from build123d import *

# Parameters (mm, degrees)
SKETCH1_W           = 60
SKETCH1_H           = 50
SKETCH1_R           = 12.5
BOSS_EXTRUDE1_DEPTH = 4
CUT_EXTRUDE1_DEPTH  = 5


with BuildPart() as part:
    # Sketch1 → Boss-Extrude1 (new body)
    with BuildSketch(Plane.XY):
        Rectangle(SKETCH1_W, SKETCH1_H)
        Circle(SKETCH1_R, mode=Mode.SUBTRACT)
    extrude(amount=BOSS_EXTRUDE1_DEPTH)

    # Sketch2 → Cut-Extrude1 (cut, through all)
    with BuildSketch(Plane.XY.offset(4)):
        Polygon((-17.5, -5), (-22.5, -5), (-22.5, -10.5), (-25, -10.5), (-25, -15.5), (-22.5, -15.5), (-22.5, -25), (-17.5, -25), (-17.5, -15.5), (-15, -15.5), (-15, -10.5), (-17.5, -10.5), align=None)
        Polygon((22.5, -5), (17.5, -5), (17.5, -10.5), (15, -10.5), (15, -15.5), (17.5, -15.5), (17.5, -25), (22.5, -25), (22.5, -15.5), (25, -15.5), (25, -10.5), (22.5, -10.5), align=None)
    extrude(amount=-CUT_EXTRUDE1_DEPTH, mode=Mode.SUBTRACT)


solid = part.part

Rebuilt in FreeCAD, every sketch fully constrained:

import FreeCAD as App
import Part
import Sketcher

V = App.Vector
Q = App.Units.Quantity

doc = App.newDocument("Part")
body = doc.addObject("PartDesign::Body", "Body")

# Sketch on XY plane
sketch1 = body.newObject("Sketcher::SketchObject", "Sketch")
sketch1.AttachmentSupport = (doc.getObject("XY_Plane"), [""])
sketch1.MapMode = "FlatFace"
sketch1.addGeometry(Part.LineSegment(V(-30, 25, 0), V(-30, -25, 0)), False)
sketch1.addGeometry(Part.LineSegment(V(-30, -25, 0), V(30, -25, 0)), False)
sketch1.addGeometry(Part.LineSegment(V(30, -25, 0), V(30, 25, 0)), False)
sketch1.addGeometry(Part.LineSegment(V(30, 25, 0), V(-30, 25, 0)), False)
sketch1.addGeometry(Part.Circle(V(0, 0, 0), V(0, 0, 1), 12.5), False)
sketch1.addConstraint(Sketcher.Constraint("Coincident", 0, 2, 1, 1))
sketch1.addConstraint(Sketcher.Constraint("Coincident", 1, 2, 2, 1))
sketch1.addConstraint(Sketcher.Constraint("Coincident", 2, 2, 3, 1))
sketch1.addConstraint(Sketcher.Constraint("Coincident", 3, 2, 0, 1))
sketch1.addConstraint(Sketcher.Constraint("Vertical", 0))
sketch1.addConstraint(Sketcher.Constraint("Horizontal", 1))
sketch1.addConstraint(Sketcher.Constraint("Vertical", 2))
sketch1.addConstraint(Sketcher.Constraint("Horizontal", 3))
sketch1.addConstraint(Sketcher.Constraint("Coincident", 4, 3, -1, 1))
sketch1.addConstraint(Sketcher.Constraint("Symmetric", 0, 2, 2, 2, -1, 1))
sketch1.addConstraint(Sketcher.Constraint("Diameter", 4, Q("25 mm")))
sketch1.addConstraint(Sketcher.Constraint("DistanceX", 1, 1, 1, 2, Q("60 mm")))
sketch1.addConstraint(Sketcher.Constraint("DistanceY", 0, 2, 0, 1, Q("50 mm")))
pad1 = body.newObject("PartDesign::Pad", "Pad")
pad1.Profile = sketch1
pad1.Length = 4

# Sketch on XY plane
sketch2 = body.newObject("Sketcher::SketchObject", "Sketch001")
sketch2.AttachmentSupport = (doc.getObject("XY_Plane"), [""])
sketch2.MapMode = "FlatFace"
sketch2.AttachmentOffset = App.Placement(V(0, 0, 4), App.Rotation())
sketch2.addGeometry(Part.LineSegment(V(-17.5, -5, 0), V(-22.5, -5, 0)), False)
sketch2.addGeometry(Part.LineSegment(V(-22.5, -5, 0), V(-22.5, -10.5, 0)), False)
sketch2.addGeometry(Part.LineSegment(V(-22.5, -10.5, 0), V(-25, -10.5, 0)), False)
sketch2.addGeometry(Part.LineSegment(V(-25, -10.5, 0), V(-25, -15.5, 0)), False)
sketch2.addGeometry(Part.LineSegment(V(-25, -15.5, 0), V(-22.5, -15.5, 0)), False)
sketch2.addGeometry(Part.LineSegment(V(-22.5, -15.5, 0), V(-22.5, -25, 0)), False)
sketch2.addGeometry(Part.LineSegment(V(-22.5, -25, 0), V(-17.5, -25, 0)), False)
sketch2.addGeometry(Part.LineSegment(V(-17.5, -25, 0), V(-17.5, -15.5, 0)), False)
sketch2.addGeometry(Part.LineSegment(V(-17.5, -15.5, 0), V(-15, -15.5, 0)), False)
sketch2.addGeometry(Part.LineSegment(V(-15, -15.5, 0), V(-15, -10.5, 0)), False)
sketch2.addGeometry(Part.LineSegment(V(-15, -10.5, 0), V(-17.5, -10.5, 0)), False)
sketch2.addGeometry(Part.LineSegment(V(-17.5, -10.5, 0), V(-17.5, -5, 0)), False)
sketch2.addGeometry(Part.LineSegment(V(22.5, -5, 0), V(17.5, -5, 0)), False)
sketch2.addGeometry(Part.LineSegment(V(17.5, -5, 0), V(17.5, -10.5, 0)), False)
sketch2.addGeometry(Part.LineSegment(V(17.5, -10.5, 0), V(15, -10.5, 0)), False)
sketch2.addGeometry(Part.LineSegment(V(15, -10.5, 0), V(15, -15.5, 0)), False)
sketch2.addGeometry(Part.LineSegment(V(15, -15.5, 0), V(17.5, -15.5, 0)), False)
sketch2.addGeometry(Part.LineSegment(V(17.5, -15.5, 0), V(17.5, -25, 0)), False)
sketch2.addGeometry(Part.LineSegment(V(17.5, -25, 0), V(22.5, -25, 0)), False)
sketch2.addGeometry(Part.LineSegment(V(22.5, -25, 0), V(22.5, -15.5, 0)), False)
sketch2.addGeometry(Part.LineSegment(V(22.5, -15.5, 0), V(25, -15.5, 0)), False)
sketch2.addGeometry(Part.LineSegment(V(25, -15.5, 0), V(25, -10.5, 0)), False)
sketch2.addGeometry(Part.LineSegment(V(25, -10.5, 0), V(22.5, -10.5, 0)), False)
sketch2.addGeometry(Part.LineSegment(V(22.5, -10.5, 0), V(22.5, -5, 0)), False)
sketch2.addConstraint(Sketcher.Constraint("Coincident", 0, 2, 1, 1))
sketch2.addConstraint(Sketcher.Constraint("Coincident", 1, 2, 2, 1))
sketch2.addConstraint(Sketcher.Constraint("Coincident", 2, 2, 3, 1))
sketch2.addConstraint(Sketcher.Constraint("Coincident", 3, 2, 4, 1))
sketch2.addConstraint(Sketcher.Constraint("Coincident", 4, 2, 5, 1))
sketch2.addConstraint(Sketcher.Constraint("Coincident", 5, 2, 6, 1))
sketch2.addConstraint(Sketcher.Constraint("Coincident", 6, 2, 7, 1))
sketch2.addConstraint(Sketcher.Constraint("Coincident", 7, 2, 8, 1))
sketch2.addConstraint(Sketcher.Constraint("Coincident", 8, 2, 9, 1))
sketch2.addConstraint(Sketcher.Constraint("Coincident", 9, 2, 10, 1))
sketch2.addConstraint(Sketcher.Constraint("Coincident", 10, 2, 11, 1))
sketch2.addConstraint(Sketcher.Constraint("Coincident", 11, 2, 0, 1))
sketch2.addConstraint(Sketcher.Constraint("Coincident", 12, 2, 13, 1))
sketch2.addConstraint(Sketcher.Constraint("Coincident", 13, 2, 14, 1))
sketch2.addConstraint(Sketcher.Constraint("Coincident", 14, 2, 15, 1))
sketch2.addConstraint(Sketcher.Constraint("Coincident", 15, 2, 16, 1))
sketch2.addConstraint(Sketcher.Constraint("Coincident", 16, 2, 17, 1))
sketch2.addConstraint(Sketcher.Constraint("Coincident", 17, 2, 18, 1))
sketch2.addConstraint(Sketcher.Constraint("Coincident", 18, 2, 19, 1))
sketch2.addConstraint(Sketcher.Constraint("Coincident", 19, 2, 20, 1))
sketch2.addConstraint(Sketcher.Constraint("Coincident", 20, 2, 21, 1))
sketch2.addConstraint(Sketcher.Constraint("Coincident", 21, 2, 22, 1))
sketch2.addConstraint(Sketcher.Constraint("Coincident", 22, 2, 23, 1))
sketch2.addConstraint(Sketcher.Constraint("Coincident", 23, 2, 12, 1))
sketch2.addConstraint(Sketcher.Constraint("Horizontal", 0))
sketch2.addConstraint(Sketcher.Constraint("Vertical", 1))
sketch2.addConstraint(Sketcher.Constraint("Horizontal", 2))
sketch2.addConstraint(Sketcher.Constraint("Vertical", 3))
sketch2.addConstraint(Sketcher.Constraint("Horizontal", 4))
sketch2.addConstraint(Sketcher.Constraint("Vertical", 5))
sketch2.addConstraint(Sketcher.Constraint("Horizontal", 6))
sketch2.addConstraint(Sketcher.Constraint("Vertical", 7))
sketch2.addConstraint(Sketcher.Constraint("Horizontal", 8))
sketch2.addConstraint(Sketcher.Constraint("Vertical", 9))
sketch2.addConstraint(Sketcher.Constraint("Horizontal", 10))
sketch2.addConstraint(Sketcher.Constraint("Vertical", 11))
sketch2.addConstraint(Sketcher.Constraint("Horizontal", 12))
sketch2.addConstraint(Sketcher.Constraint("Vertical", 13))
sketch2.addConstraint(Sketcher.Constraint("Horizontal", 14))
sketch2.addConstraint(Sketcher.Constraint("Vertical", 15))
sketch2.addConstraint(Sketcher.Constraint("Horizontal", 16))
sketch2.addConstraint(Sketcher.Constraint("Vertical", 17))
sketch2.addConstraint(Sketcher.Constraint("Horizontal", 18))
sketch2.addConstraint(Sketcher.Constraint("Vertical", 19))
sketch2.addConstraint(Sketcher.Constraint("Horizontal", 20))
sketch2.addConstraint(Sketcher.Constraint("Vertical", 21))
sketch2.addConstraint(Sketcher.Constraint("Horizontal", 22))
sketch2.addConstraint(Sketcher.Constraint("Vertical", 23))
sketch2.addConstraint(Sketcher.Constraint("Symmetric", 11, 2, 12, 2, -2))
sketch2.addConstraint(Sketcher.Constraint("Symmetric", 9, 2, 14, 2, -2))
sketch2.addConstraint(Sketcher.Constraint("Symmetric", 7, 2, 16, 2, -2))
sketch2.addConstraint(Sketcher.Constraint("Symmetric", 5, 2, 18, 2, -2))
sketch2.addConstraint(Sketcher.Constraint("Symmetric", 3, 2, 20, 2, -2))
sketch2.addConstraint(Sketcher.Constraint("Symmetric", 1, 2, 22, 2, -2))
sketch2.addConstraint(Sketcher.Constraint("Horizontal", 4, 2, 7, 2))
sketch2.addConstraint(Sketcher.Constraint("Horizontal", 2, 2, 9, 2))
sketch2.addConstraint(Sketcher.Constraint("Vertical", 1, 2, 4, 2))
sketch2.addConstraint(Sketcher.Constraint("Vertical", 7, 2, 10, 2))
sketch2.addConstraint(Sketcher.Constraint("Equal", 4, 8))
sketch2.addConstraint(Sketcher.Constraint("Equal", 18, 3))
sketch2.addConstraint(Sketcher.Constraint("DistanceX", 0, 2, 0, 1, Q("5 mm")))
sketch2.addConstraint(Sketcher.Constraint("DistanceX", 2, 2, 2, 1, Q("2.5 mm")))
sketch2.addConstraint(Sketcher.Constraint("DistanceY", 1, 2, 1, 1, Q("5.5 mm")))
sketch2.addConstraint(Sketcher.Constraint("DistanceY", 5, 2, 5, 1, Q("9.5 mm")))
sketch2.addConstraint(Sketcher.Constraint("DistanceY", 0, 2, -1, 1, Q("5 mm")))
sketch2.addConstraint(Sketcher.Constraint("DistanceX", 2, 2, -1, 1, Q("25 mm")))
pocket1 = body.newObject("PartDesign::Pocket", "Pocket")
pocket1.Profile = sketch2
pocket1.Type = "ThroughAll"

doc.recompute()
